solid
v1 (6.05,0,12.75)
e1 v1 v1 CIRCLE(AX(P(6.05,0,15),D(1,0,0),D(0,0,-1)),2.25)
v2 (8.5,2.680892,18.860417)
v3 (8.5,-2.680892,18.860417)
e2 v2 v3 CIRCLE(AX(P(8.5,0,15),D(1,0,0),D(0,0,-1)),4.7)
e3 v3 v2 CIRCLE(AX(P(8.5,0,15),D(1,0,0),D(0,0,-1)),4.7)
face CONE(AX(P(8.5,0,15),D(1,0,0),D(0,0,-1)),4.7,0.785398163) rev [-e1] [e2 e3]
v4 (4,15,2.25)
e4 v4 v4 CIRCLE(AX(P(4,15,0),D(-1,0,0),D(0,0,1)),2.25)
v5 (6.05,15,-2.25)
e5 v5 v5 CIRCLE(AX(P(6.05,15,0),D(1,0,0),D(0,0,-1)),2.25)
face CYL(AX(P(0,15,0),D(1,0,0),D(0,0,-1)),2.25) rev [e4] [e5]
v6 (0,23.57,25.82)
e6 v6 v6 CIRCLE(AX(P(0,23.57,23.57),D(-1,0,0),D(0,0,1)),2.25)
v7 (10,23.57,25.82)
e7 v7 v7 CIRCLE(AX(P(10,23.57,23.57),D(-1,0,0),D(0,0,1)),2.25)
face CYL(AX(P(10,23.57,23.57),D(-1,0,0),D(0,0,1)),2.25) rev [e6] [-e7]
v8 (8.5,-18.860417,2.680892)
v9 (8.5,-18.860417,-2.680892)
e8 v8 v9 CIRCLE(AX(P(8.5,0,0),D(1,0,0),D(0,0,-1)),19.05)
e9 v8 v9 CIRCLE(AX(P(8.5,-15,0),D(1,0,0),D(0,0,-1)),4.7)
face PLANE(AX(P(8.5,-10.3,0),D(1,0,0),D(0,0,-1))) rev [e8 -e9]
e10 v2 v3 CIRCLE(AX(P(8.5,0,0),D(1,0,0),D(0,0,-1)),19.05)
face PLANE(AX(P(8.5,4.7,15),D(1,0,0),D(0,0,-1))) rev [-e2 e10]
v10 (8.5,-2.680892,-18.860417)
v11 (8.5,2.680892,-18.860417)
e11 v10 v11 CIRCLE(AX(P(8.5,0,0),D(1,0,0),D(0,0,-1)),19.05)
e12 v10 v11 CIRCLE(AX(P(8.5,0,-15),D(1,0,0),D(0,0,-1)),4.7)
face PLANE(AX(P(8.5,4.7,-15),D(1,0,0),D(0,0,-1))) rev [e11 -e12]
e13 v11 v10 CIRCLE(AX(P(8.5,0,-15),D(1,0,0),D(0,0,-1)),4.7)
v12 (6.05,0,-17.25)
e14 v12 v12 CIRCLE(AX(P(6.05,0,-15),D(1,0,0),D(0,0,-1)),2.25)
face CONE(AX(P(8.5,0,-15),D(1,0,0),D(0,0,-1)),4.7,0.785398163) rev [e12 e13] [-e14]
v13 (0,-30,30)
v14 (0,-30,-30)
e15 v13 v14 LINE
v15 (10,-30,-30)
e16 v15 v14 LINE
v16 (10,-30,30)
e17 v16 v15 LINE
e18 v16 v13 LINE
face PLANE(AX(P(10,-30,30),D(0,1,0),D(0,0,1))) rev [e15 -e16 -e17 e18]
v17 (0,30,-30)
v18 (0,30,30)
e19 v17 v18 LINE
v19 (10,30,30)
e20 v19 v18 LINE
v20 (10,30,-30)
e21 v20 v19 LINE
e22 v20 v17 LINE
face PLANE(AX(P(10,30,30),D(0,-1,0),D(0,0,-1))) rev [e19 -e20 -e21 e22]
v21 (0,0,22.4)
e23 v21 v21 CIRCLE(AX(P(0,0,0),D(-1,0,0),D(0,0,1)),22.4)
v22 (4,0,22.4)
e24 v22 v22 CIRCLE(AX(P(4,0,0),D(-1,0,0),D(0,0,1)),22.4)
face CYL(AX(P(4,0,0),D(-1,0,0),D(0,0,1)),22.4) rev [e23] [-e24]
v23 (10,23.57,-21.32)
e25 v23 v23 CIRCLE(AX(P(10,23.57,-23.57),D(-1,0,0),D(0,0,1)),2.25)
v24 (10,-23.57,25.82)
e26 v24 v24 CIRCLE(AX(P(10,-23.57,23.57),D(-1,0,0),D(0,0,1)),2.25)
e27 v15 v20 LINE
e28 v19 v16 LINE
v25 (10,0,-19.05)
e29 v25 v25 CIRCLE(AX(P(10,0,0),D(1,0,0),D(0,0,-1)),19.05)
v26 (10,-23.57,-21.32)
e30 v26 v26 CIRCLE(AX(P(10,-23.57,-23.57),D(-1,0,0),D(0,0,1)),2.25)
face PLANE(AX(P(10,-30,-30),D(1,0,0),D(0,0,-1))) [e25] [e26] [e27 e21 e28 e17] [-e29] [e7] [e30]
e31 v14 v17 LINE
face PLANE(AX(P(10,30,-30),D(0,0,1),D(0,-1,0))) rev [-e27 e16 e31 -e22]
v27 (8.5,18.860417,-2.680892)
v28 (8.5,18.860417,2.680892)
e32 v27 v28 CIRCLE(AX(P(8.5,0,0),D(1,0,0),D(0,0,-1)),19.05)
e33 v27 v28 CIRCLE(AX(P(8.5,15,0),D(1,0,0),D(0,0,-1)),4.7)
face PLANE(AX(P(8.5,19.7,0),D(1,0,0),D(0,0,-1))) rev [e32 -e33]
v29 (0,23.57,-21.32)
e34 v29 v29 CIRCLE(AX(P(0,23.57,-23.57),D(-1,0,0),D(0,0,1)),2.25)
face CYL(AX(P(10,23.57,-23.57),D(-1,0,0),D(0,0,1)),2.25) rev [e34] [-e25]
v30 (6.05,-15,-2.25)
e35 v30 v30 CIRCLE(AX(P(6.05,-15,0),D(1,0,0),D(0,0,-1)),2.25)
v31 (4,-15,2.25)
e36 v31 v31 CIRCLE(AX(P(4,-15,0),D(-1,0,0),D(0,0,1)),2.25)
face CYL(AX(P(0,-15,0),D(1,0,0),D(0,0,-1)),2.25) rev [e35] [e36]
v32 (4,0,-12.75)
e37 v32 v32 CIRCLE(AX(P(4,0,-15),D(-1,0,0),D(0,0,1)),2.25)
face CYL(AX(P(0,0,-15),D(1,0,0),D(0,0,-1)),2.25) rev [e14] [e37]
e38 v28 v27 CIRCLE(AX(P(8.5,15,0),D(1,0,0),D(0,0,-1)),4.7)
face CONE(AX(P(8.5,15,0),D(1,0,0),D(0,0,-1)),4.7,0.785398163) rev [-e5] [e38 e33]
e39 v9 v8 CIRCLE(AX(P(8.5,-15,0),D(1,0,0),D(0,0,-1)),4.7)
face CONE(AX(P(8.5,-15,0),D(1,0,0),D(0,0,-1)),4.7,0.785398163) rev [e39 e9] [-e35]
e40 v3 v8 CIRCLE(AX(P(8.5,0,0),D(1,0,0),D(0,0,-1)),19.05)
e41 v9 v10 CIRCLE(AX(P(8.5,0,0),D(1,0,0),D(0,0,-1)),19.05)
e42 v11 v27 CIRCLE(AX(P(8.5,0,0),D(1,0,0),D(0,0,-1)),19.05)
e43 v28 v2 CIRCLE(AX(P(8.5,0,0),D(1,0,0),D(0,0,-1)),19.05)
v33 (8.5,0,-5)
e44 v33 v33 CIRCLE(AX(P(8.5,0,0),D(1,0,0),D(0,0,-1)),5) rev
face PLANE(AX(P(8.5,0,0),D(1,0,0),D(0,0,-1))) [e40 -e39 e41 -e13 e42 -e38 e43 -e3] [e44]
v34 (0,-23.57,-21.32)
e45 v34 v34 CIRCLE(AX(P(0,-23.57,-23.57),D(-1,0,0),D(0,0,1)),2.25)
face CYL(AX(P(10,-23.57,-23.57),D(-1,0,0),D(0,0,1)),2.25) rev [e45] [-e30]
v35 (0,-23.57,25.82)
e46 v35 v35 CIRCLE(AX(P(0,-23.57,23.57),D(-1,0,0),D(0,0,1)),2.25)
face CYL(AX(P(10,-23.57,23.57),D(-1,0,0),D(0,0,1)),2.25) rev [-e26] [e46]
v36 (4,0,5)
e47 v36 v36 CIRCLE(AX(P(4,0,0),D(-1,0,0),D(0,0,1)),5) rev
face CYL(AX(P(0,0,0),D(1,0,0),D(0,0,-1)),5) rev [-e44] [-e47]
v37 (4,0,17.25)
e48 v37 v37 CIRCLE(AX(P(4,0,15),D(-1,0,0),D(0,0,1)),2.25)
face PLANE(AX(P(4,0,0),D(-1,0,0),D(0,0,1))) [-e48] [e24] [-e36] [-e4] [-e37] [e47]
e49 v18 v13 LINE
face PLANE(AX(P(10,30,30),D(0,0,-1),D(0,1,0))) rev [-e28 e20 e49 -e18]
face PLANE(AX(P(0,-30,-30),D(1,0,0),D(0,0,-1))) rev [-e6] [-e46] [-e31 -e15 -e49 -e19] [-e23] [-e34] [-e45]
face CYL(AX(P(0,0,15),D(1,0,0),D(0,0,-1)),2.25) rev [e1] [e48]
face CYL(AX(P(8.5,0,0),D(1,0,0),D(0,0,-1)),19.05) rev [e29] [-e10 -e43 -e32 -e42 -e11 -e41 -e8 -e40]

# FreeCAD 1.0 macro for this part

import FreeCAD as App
import Part
import Sketcher
Q = App.Units.Quantity

doc = App.newDocument("Part")
body = doc.addObject("PartDesign::Body", "Body")

sketch1 = doc.addObject("Sketcher::SketchObject", "Sketch")
body.addObject(sketch1)
sketch1.AttachmentSupport = (doc.YZ_Plane, [""])
sketch1.MapMode = "FlatFace"
sketch1.addGeometry([
    Part.LineSegment(App.Vector(30, 30, 0), App.Vector(-30, 30, 0)),
    Part.LineSegment(App.Vector(-30, 30, 0), App.Vector(-30, -30, 0)),
    Part.LineSegment(App.Vector(-30, -30, 0), App.Vector(30, -30, 0)),
    Part.LineSegment(App.Vector(30, -30, 0), App.Vector(30, 30, 0)),
], False)
sketch1.addConstraint([
    Sketcher.Constraint("Coincident", 0, 2, 1, 1),
    Sketcher.Constraint("Coincident", 1, 2, 2, 1),
    Sketcher.Constraint("Coincident", 2, 2, 3, 1),
    Sketcher.Constraint("Coincident", 3, 2, 0, 1),
    Sketcher.Constraint("Horizontal", 0),
    Sketcher.Constraint("Vertical", 1),
    Sketcher.Constraint("Horizontal", 2),
    Sketcher.Constraint("Vertical", 3),
    Sketcher.Constraint("Symmetric", 0, 2, 2, 2, -1, 1),
    Sketcher.Constraint("Equal", 2, 1),
    Sketcher.Constraint("DistanceX", 0, 2, 0, 1, Q("60 mm")),
])
pad1 = doc.addObject("PartDesign::Pad", "Pad")
body.addObject(pad1)
pad1.Profile = sketch1
pad1.Length = 10

sketch2 = doc.addObject("Sketcher::SketchObject", "Sketch001")
body.addObject(sketch2)
sketch2.AttachmentSupport = (doc.YZ_Plane, [""])
sketch2.MapMode = "FlatFace"
sketch2.AttachmentOffset = App.Placement(App.Vector(0, 0, 10), App.Rotation())
sketch2.addGeometry(Part.Circle(App.Vector(0, 0, 0), App.Vector(0, 0, 1), 5), False)
sketch2.addConstraint([
    Sketcher.Constraint("Coincident", 0, 3, -1, 1),
    Sketcher.Constraint("Diameter", 0, Q("10 mm")),
])
pocket1 = doc.addObject("PartDesign::Pocket", "Pocket")
body.addObject(pocket1)
pocket1.Profile = sketch2
pocket1.Type = "ThroughAll"

sketch3 = doc.addObject("Sketcher::SketchObject", "Sketch002")
body.addObject(sketch3)
sketch3.AttachmentSupport = (doc.YZ_Plane, [""])
sketch3.MapMode = "FlatFace"
sketch3.AttachmentOffset = App.Placement(App.Vector(0, 0, 10), App.Rotation())
sketch3.addGeometry(Part.Circle(App.Vector(0, 0, 0), App.Vector(0, 0, 1), 19), False)
sketch3.addConstraint([
    Sketcher.Constraint("Coincident", 0, 3, -1, 1),
    Sketcher.Constraint("Diameter", 0, Q("38.1 mm")),
])
pocket2 = doc.addObject("PartDesign::Pocket", "Pocket001")
body.addObject(pocket2)
pocket2.Profile = sketch3
pocket2.Length = 1.5

sketch4 = doc.addObject("Sketcher::SketchObject", "Sketch003")
body.addObject(sketch4)
sketch4.AttachmentSupport = (doc.YZ_Plane, [""])
sketch4.MapMode = "FlatFace"
sketch4.addGeometry(Part.Circle(App.Vector(0, 0, 0), App.Vector(0, 0, 1), 22), False)
sketch4.addConstraint([
    Sketcher.Constraint("Coincident", 0, 3, -1, 1),
    Sketcher.Constraint("Diameter", 0, Q("44.8 mm")),
])
pocket3 = doc.addObject("PartDesign::Pocket", "Pocket002")
body.addObject(pocket3)
pocket3.Profile = sketch4
pocket3.Length = 4
pocket3.Reversed = True

sketch5 = doc.addObject("Sketcher::SketchObject", "Sketch004")
body.addObject(sketch5)
sketch5.AttachmentSupport = (doc.YZ_Plane, [""])
sketch5.MapMode = "FlatFace"
sketch5.addGeometry([
    Part.Circle(App.Vector(23.6, 23.6, 0), App.Vector(0, 0, 1), 2.2),
    Part.Circle(App.Vector(23.6, -23.6, 0), App.Vector(0, 0, 1), 2.2),
    Part.Circle(App.Vector(-23.6, 23.6, 0), App.Vector(0, 0, 1), 2.2),
    Part.Circle(App.Vector(-23.6, -23.6, 0), App.Vector(0, 0, 1), 2.2),
], False)
sketch5.addConstraint([
    Sketcher.Constraint("Equal", 0, 1),
    Sketcher.Constraint("Equal", 1, 2),
    Sketcher.Constraint("Equal", 2, 3),
    Sketcher.Constraint("Symmetric", 1, 3, 2, 3, -1, 1),
    Sketcher.Constraint("Symmetric", 0, 3, 3, 3, -1, 1),
    Sketcher.Constraint("Symmetric", 0, 3, 2, 3, -2),
    Sketcher.Constraint("Diameter", 0, Q("4.5 mm")),
    Sketcher.Constraint("DistanceX", -1, 1, 0, 3, Q("23.57 mm")),
    Sketcher.Constraint("DistanceY", -1, 1, 0, 3, Q("23.57 mm")),
])
pocket4 = doc.addObject("PartDesign::Pocket", "Pocket003")
body.addObject(pocket4)
pocket4.Profile = sketch5
pocket4.Type = "ThroughAll"
pocket4.Reversed = True

sketch6 = doc.addObject("Sketcher::SketchObject", "Sketch005")
body.addObject(sketch6)
sketch6.AttachmentSupport = (doc.YZ_Plane, [""])
sketch6.MapMode = "FlatFace"
sketch6.AttachmentOffset = App.Placement(App.Vector(0, 0, 8.5), App.Rotation())
sketch6.addGeometry([
    Part.Circle(App.Vector(15, 0, 0), App.Vector(0, 0, 1), 2.2),
    Part.Circle(App.Vector(0, 15, 0), App.Vector(0, 0, 1), 2.2),
    Part.Circle(App.Vector(-15, 0, 0), App.Vector(0, 0, 1), 2.2),
    Part.Circle(App.Vector(0, -15, 0), App.Vector(0, 0, 1), 2.2),
], False)
sketch6.addConstraint([
    Sketcher.Constraint("Equal", 0, 1),
    Sketcher.Constraint("Equal", 1, 2),
    Sketcher.Constraint("Equal", 2, 3),
    Sketcher.Constraint("Symmetric", 0, 3, 2, 3, -1, 1),
    Sketcher.Constraint("Symmetric", 1, 3, 3, 3, -1, 1),
    Sketcher.Constraint("PointOnObject", 0, 3, -1),
    Sketcher.Constraint("PointOnObject", 1, 3, -2),
    Sketcher.Constraint("Diameter", 0, Q("4.5 mm")),
    Sketcher.Constraint("DistanceX", -1, 1, 0, 3, Q("15 mm")),
    Sketcher.Constraint("DistanceY", -1, 1, 1, 3, Q("15 mm")),
])
pocket5 = doc.addObject("PartDesign::Pocket", "Pocket004")
body.addObject(pocket5)
pocket5.Profile = sketch6
pocket5.Type = "ThroughAll"

sketch7 = doc.addObject("Sketcher::SketchObject", "Sketch006")
body.addObject(sketch7)
sketch7.AttachmentSupport = (doc.XZ_Plane, [""])
sketch7.MapMode = "FlatFace"
sketch7.AttachmentOffset = App.Placement(App.Vector(0, 0, -15), App.Rotation())
sketch7.addGeometry([
    Part.LineSegment(App.Vector(0, 0, 0), App.Vector(8.5, 0, 0)),
    Part.LineSegment(App.Vector(8.5, 0, 0), App.Vector(8.5, -4.7, 0)),
    Part.LineSegment(App.Vector(8.5, -4.7, 0), App.Vector(6, -2.2, 0)),
    Part.LineSegment(App.Vector(6, -2.2, 0), App.Vector(0, -2.2, 0)),
    Part.LineSegment(App.Vector(0, -2.2, 0), App.Vector(0, 0, 0)),
], False)
sketch7.addConstraint([
    Sketcher.Constraint("Coincident", 0, 2, 1, 1),
    Sketcher.Constraint("Coincident", 1, 2, 2, 1),
    Sketcher.Constraint("Coincident", 2, 2, 3, 1),
    Sketcher.Constraint("Coincident", 3, 2, 4, 1),
    Sketcher.Constraint("Coincident", 4, 2, 0, 1),
    Sketcher.Constraint("Horizontal", 0),
    Sketcher.Constraint("Vertical", 1),
    Sketcher.Constraint("Horizontal", 3),
    Sketcher.Constraint("Vertical", 4),
    Sketcher.Constraint("Coincident", 4, 2, -1, 1),
    Sketcher.Constraint("Angle", 2, Q("135 deg")),
    Sketcher.Constraint("DistanceX", 0, 1, 0, 2, Q("8.5 mm")),
    Sketcher.Constraint("DistanceY", 1, 2, 1, 1, Q("4.7 mm")),
    Sketcher.Constraint("DistanceX", 3, 2, 3, 1, Q("6.05 mm")),
])
groove = doc.addObject("PartDesign::Groove", "Groove")
body.addObject(groove)
groove.Profile = sketch7
groove.ReferenceAxis = (sketch7, ["H_Axis"])
groove.Angle = 360
doc.recompute()

datumline = doc.addObject("PartDesign::Line", "DatumLine")
body.addObject(datumline)
datumline.Placement = App.Placement(App.Vector(0, 0, 0), App.Rotation(App.Vector(0, 0, 1), App.Vector(0, -0.707106781, 0.707106781)))
linearpattern = doc.addObject("PartDesign::LinearPattern", "LinearPattern")
body.addObject(linearpattern)
linearpattern.Originals = [groove]
linearpattern.Direction = (datumline, [""])
linearpattern.Mode = "offset"
linearpattern.Offset = 21.213203
linearpattern.Occurrences = 2
body.Tip = linearpattern
doc.recompute()

linearpattern2 = doc.addObject("PartDesign::LinearPattern", "LinearPattern001")
body.addObject(linearpattern2)
linearpattern2.Originals = [groove]
linearpattern2.Direction = (doc.Y_Axis, [""])
linearpattern2.Mode = "offset"
linearpattern2.Offset = 30
linearpattern2.Occurrences = 2
linearpattern2.Reversed = True
body.Tip = linearpattern2
doc.recompute()

datumline2 = doc.addObject("PartDesign::Line", "DatumLine001")
body.addObject(datumline2)
datumline2.Placement = App.Placement(App.Vector(0, 0, 0), App.Rotation(App.Vector(0, 0, 1), App.Vector(0, -0.707106781, -0.707106781)))
linearpattern3 = doc.addObject("PartDesign::LinearPattern", "LinearPattern002")
body.addObject(linearpattern3)
linearpattern3.Originals = [groove]
linearpattern3.Direction = (datumline2, [""])
linearpattern3.Mode = "offset"
linearpattern3.Offset = 21.213203
linearpattern3.Occurrences = 2
body.Tip = linearpattern3

doc.recompute()
